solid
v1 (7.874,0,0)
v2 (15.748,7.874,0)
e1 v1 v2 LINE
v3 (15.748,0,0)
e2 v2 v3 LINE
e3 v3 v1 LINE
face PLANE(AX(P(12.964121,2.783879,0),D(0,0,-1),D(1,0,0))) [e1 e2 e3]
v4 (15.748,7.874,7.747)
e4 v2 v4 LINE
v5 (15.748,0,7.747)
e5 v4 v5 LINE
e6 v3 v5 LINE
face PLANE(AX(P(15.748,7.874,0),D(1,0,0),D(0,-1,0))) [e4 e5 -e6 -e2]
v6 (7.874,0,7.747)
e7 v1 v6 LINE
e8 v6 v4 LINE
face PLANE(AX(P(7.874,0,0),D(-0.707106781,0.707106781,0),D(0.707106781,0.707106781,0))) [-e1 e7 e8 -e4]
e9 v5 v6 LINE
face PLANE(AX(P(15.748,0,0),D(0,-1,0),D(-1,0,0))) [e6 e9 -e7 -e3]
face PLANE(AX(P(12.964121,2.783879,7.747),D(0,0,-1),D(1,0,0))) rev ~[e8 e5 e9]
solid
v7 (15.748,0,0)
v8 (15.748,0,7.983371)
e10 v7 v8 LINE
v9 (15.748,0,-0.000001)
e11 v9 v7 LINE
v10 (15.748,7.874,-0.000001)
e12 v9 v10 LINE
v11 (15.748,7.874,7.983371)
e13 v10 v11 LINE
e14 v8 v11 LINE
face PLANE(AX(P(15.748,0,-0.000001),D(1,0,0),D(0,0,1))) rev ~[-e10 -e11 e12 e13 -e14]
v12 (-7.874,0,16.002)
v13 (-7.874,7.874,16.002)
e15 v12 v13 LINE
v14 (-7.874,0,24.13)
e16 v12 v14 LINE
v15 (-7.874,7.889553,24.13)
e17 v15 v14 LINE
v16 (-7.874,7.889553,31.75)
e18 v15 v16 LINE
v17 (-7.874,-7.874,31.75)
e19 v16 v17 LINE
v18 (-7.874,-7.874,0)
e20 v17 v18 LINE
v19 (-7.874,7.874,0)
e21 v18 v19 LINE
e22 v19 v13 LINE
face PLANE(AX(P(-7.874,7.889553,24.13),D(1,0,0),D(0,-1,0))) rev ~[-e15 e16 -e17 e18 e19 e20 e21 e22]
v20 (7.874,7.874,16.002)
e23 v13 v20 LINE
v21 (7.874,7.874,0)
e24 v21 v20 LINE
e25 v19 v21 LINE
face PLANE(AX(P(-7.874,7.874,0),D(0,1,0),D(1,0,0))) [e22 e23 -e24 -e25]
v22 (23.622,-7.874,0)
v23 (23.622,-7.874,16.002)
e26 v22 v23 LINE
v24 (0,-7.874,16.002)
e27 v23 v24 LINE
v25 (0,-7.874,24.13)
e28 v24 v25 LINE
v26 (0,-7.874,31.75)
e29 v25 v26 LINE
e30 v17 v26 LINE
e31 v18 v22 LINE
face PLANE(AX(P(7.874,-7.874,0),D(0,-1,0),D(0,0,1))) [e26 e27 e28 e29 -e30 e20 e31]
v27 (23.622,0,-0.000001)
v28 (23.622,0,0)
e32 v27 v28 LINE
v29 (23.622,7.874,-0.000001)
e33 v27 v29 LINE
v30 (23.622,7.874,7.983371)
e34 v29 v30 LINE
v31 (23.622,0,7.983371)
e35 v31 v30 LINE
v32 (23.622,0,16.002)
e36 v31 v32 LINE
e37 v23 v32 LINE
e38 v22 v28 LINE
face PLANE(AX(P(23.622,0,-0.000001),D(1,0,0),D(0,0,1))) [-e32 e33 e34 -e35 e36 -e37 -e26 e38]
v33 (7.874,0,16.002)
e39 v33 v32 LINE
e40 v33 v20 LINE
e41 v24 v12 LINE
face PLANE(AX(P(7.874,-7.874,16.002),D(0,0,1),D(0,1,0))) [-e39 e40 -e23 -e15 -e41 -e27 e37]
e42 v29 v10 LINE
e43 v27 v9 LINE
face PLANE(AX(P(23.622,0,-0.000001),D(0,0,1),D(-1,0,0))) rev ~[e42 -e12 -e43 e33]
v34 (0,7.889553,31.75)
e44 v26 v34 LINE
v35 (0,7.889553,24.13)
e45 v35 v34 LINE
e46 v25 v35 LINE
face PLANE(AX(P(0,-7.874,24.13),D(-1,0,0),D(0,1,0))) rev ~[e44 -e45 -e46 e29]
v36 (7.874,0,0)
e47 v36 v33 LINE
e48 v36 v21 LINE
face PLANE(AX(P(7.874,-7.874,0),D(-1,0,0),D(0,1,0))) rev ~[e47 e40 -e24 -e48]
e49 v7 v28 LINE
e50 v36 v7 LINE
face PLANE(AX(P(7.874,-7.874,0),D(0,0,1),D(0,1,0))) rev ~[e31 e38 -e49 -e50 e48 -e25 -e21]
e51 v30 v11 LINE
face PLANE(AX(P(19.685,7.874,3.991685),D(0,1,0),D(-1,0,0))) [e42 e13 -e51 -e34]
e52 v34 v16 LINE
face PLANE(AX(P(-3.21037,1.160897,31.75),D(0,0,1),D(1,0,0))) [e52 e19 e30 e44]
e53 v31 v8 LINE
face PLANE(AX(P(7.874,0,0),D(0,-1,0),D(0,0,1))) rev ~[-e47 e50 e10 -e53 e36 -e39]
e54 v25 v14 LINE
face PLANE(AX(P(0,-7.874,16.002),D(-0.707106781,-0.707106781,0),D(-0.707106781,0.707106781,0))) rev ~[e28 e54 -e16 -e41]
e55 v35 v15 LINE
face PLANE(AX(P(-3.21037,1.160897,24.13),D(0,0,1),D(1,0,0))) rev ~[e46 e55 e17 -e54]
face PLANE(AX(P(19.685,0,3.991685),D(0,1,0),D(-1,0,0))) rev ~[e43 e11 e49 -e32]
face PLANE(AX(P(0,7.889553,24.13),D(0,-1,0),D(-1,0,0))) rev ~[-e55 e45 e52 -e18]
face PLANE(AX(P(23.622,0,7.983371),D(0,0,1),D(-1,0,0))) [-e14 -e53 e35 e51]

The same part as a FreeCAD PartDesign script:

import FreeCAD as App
import Part
import Sketcher
Q = App.Units.Quantity


def add_polygon(sketch, points):
    """Adds a closed chain of lines whose ends are joined by coincident constraints."""
    first, n = sketch.GeometryCount, len(points)
    for a, b in zip(points, points[1:] + points[:1]):
        sketch.addGeometry(Part.LineSegment(App.Vector(*a, 0), App.Vector(*b, 0)), False)
    for i in range(n):
        sketch.addConstraint(Sketcher.Constraint("Coincident", first + i, 2, first + (i + 1) % n, 1))

doc = App.newDocument("Part")
body = doc.addObject("PartDesign::Body", "Body")

# Sketch on XY plane
sketch1 = body.newObject("Sketcher::SketchObject", "Sketch")
sketch1.AttachmentSupport = (doc.getObject("XY_Plane"), [""])
sketch1.MapMode = "FlatFace"
add_polygon(sketch1, [(-8, 8), (-8, -8), (8, -8), (8, 8)])  # lines 0-3
sketch1.addConstraint([
    Sketcher.Constraint("Vertical", 0),
    Sketcher.Constraint("Horizontal", 1),
    Sketcher.Constraint("Vertical", 2),
    Sketcher.Constraint("Horizontal", 3),
    Sketcher.Constraint("Symmetric", 0, 2, 2, 2, -1, 1),
    Sketcher.Constraint("Equal", 3, 0),
    Sketcher.Constraint("DistanceX", 1, 1, 1, 2, Q("0.62 in")),
])
pad1 = body.newObject("PartDesign::Pad", "Pad")
pad1.Profile = sketch1
pad1.Length = Q("0.63 in")

# Sketch on XY plane
sketch2 = body.newObject("Sketcher::SketchObject", "Sketch001")
sketch2.AttachmentSupport = (doc.getObject("XY_Plane"), [""])
sketch2.MapMode = "FlatFace"
sketch2.AttachmentOffset = App.Placement(App.Vector(0, 0, 0.63 * 25.4), App.Rotation())
add_polygon(sketch2, [(0, -8), (-8, 0), (-8, -8)])  # lines 0-2
sketch2.addConstraint([
    Sketcher.Constraint("Vertical", 1),
    Sketcher.Constraint("Horizontal", 2),
    Sketcher.Constraint("PointOnObject", 0, 2, -1),
    Sketcher.Constraint("PointOnObject", 2, 2, -2),
    Sketcher.Constraint("Equal", 2, 1),
    Sketcher.Constraint("DistanceX", 2, 1, 2, 2, Q("0.31 in")),
])
pad2 = body.newObject("PartDesign::Pad", "Pad001")
pad2.Profile = sketch2
pad2.Length = Q("0.32 in")

# Sketch on XY plane
sketch3 = body.newObject("Sketcher::SketchObject", "Sketch002")
sketch3.AttachmentSupport = (doc.getObject("XY_Plane"), [""])
sketch3.MapMode = "FlatFace"
sketch3.AttachmentOffset = App.Placement(App.Vector(0, 0, 0.95 * 25.4), App.Rotation())
add_polygon(sketch3, [(0, -8), (0, 8), (-8, 8), (-8, -8)])  # lines 0-3
sketch3.addConstraint([
    Sketcher.Constraint("Vertical", 0),
    Sketcher.Constraint("Horizontal", 1),
    Sketcher.Constraint("Vertical", 2),
    Sketcher.Constraint("Horizontal", 3),
    Sketcher.Constraint("PointOnObject", 0, 2, -2),
    Sketcher.Constraint("DistanceX", 1, 2, 1, 1, Q("0.31 in")),
    Sketcher.Constraint("DistanceY", 2, 2, -1, 1, Q("0.31 in")),
    Sketcher.Constraint("DistanceY", 0, 1, 0, 2, 15.763553),
])
pad3 = body.newObject("PartDesign::Pad", "Pad002")
pad3.Profile = sketch3
pad3.Length = Q("0.3 in")

# Sketch on YZ plane
sketch4 = body.newObject("Sketcher::SketchObject", "Sketch003")
sketch4.AttachmentSupport = (doc.getObject("YZ_Plane"), [""])
sketch4.MapMode = "FlatFace"
sketch4.AttachmentOffset = App.Placement(App.Vector(0, 0, 0.31 * 25.4), App.Rotation())
add_polygon(sketch4, [(-8, 16), (-8, 0), (0, 0), (0, 16)])  # lines 0-3
sketch4.addConstraint([
    Sketcher.Constraint("Vertical", 0),
    Sketcher.Constraint("Horizontal", 1),
    Sketcher.Constraint("Vertical", 2),
    Sketcher.Constraint("Horizontal", 3),
    Sketcher.Constraint("Coincident", 1, 2, -1, 1),
    Sketcher.Constraint("DistanceX", 1, 1, 1, 2, Q("0.31 in")),
    Sketcher.Constraint("DistanceY", 0, 2, 0, 1, Q("0.63 in")),
])
pad4 = body.newObject("PartDesign::Pad", "Pad003")
pad4.Profile = sketch4
pad4.Length = Q("0.62 in")

# Sketch on XZ plane
sketch5 = body.newObject("Sketcher::SketchObject", "Sketch004")
sketch5.AttachmentSupport = (doc.getObject("XZ_Plane"), [""])
sketch5.MapMode = "FlatFace"
add_polygon(sketch5, [(24, 8), (24, 0), (16, 0), (16, 8)])  # lines 0-3
sketch5.addConstraint([
    Sketcher.Constraint("Vertical", 0),
    Sketcher.Constraint("Horizontal", 1),
    Sketcher.Constraint("Vertical", 2),
    Sketcher.Constraint("Horizontal", 3),
    Sketcher.Constraint("PointOnObject", 0, 2, -1),
    Sketcher.Constraint("DistanceX", 1, 2, 1, 1, Q("0.31 in")),
    Sketcher.Constraint("DistanceX", -1, 1, 0, 2, Q("0.93 in")),
    Sketcher.Constraint("DistanceY", 0, 2, 0, 1, 7.983371),
])
pad5 = body.newObject("PartDesign::Pad", "Pad004")
pad5.Profile = sketch5
pad5.Length = Q("0.31 in")
pad5.Reversed = True
body2 = doc.addObject("PartDesign::Body", "Body001")

# Sketch on XY plane
sketch6 = body2.newObject("Sketcher::SketchObject", "Sketch005")
sketch6.AttachmentSupport = (doc.getObject("XY_Plane001"), [""])
sketch6.MapMode = "FlatFace"
add_polygon(sketch6, [(8, 0), (16, 8), (16, 0)])  # lines 0-2
sketch6.addConstraint([
    Sketcher.Constraint("Vertical", 1),
    Sketcher.Constraint("Horizontal", 2),
    Sketcher.Constraint("PointOnObject", 1, 2, -1),
    Sketcher.Constraint("Equal", 2, 1),
    Sketcher.Constraint("DistanceX", 2, 2, 2, 1, Q("0.31 in")),
    Sketcher.Constraint("DistanceX", -1, 1, 0, 2, Q("0.62 in")),
])
pad6 = body2.newObject("PartDesign::Pad", "Pad005")
pad6.Profile = sketch6
pad6.Length = Q("0.305 in")

doc.recompute()
